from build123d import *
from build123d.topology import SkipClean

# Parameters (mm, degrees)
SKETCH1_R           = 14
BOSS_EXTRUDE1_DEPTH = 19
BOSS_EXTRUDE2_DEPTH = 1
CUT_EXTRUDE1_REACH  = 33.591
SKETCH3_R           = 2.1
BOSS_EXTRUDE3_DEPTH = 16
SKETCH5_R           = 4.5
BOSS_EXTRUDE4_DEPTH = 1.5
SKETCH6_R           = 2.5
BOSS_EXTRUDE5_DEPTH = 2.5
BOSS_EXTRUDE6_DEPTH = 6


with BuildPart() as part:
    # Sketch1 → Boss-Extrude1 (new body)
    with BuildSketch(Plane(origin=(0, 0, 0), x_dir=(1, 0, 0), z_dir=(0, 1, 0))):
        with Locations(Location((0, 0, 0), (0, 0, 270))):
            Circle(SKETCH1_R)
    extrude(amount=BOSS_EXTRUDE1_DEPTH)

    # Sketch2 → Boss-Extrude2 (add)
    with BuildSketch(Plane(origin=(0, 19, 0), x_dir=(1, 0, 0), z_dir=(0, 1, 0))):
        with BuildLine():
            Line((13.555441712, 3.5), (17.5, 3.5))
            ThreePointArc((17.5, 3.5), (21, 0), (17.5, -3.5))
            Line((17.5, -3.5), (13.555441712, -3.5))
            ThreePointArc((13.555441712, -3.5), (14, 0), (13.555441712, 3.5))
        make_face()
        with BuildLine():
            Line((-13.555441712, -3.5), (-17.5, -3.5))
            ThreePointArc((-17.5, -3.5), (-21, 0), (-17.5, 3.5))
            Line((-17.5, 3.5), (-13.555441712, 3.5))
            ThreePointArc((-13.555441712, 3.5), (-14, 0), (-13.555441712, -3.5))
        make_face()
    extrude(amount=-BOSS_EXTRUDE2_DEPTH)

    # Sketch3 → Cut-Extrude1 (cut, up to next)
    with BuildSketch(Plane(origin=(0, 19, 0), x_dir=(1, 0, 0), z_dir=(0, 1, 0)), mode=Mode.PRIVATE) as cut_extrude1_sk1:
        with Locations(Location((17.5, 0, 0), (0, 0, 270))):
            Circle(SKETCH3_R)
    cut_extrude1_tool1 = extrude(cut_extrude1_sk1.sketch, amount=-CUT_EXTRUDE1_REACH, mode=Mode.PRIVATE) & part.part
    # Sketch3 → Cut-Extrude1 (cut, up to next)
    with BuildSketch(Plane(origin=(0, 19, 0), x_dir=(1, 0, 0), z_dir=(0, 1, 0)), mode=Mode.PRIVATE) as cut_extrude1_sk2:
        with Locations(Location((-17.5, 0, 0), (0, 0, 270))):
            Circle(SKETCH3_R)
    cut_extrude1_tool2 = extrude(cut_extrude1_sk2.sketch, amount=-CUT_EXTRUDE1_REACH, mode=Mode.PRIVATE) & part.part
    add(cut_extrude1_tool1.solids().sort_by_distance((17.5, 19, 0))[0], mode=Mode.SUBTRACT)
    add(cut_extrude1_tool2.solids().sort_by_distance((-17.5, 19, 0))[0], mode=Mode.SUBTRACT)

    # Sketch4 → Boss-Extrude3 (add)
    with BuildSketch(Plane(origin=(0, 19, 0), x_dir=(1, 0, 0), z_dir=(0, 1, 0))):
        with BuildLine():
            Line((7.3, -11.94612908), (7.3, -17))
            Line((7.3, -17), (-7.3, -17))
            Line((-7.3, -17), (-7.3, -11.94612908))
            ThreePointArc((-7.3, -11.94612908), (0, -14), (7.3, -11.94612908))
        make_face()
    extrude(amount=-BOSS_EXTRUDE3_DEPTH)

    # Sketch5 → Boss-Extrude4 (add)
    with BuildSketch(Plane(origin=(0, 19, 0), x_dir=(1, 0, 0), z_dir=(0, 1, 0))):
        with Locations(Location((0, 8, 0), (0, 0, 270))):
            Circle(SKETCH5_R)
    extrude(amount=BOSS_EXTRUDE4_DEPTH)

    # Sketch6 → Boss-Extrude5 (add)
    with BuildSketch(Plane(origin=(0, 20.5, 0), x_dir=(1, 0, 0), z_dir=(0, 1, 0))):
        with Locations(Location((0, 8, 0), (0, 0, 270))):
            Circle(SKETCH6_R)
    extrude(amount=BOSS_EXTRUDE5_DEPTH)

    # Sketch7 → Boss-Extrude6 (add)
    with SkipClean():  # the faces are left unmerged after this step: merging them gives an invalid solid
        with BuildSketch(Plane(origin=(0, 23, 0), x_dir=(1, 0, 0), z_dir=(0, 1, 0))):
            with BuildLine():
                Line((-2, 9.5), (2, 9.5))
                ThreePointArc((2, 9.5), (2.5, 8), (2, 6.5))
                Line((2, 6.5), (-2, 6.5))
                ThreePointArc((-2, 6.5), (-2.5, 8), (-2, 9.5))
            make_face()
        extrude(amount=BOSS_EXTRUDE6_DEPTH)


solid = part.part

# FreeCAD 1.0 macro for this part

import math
import FreeCAD as App
import Part
import Sketcher
from FreeCAD import Vector

doc = App.newDocument("Part")
body = doc.addObject("PartDesign::Body", "Body")

sketch1 = doc.addObject("Sketcher::SketchObject", "Sketch")
body.addObject(sketch1)
sketch1.AttachmentSupport = (doc.XZ_Plane, [""])
sketch1.MapMode = "FlatFace"
sketch1.addGeometry(Part.Circle(Vector(0, 0, 0), Vector(0, 0, 1), 14), False)
sketch1.addConstraint([
    Sketcher.Constraint("Coincident", 0, 3, -1, 1),
    Sketcher.Constraint("Diameter", 0, 28.0),
])
pad1 = doc.addObject("PartDesign::Pad", "Pad")
body.addObject(pad1)
pad1.Profile = sketch1
pad1.Length = 19
pad1.Reversed = True

sketch2 = doc.addObject("Sketcher::SketchObject", "Sketch001")
body.addObject(sketch2)
sketch2.AttachmentSupport = (doc.XZ_Plane, [""])
sketch2.MapMode = "FlatFace"
sketch2.AttachmentOffset = App.Placement(Vector(0, 0, -19), App.Rotation())
sketch2.addGeometry([
    Part.LineSegment(Vector(17.5, -3.5, 0), Vector(13.555442, -3.5, 0)),
    Part.ArcOfCircle(Part.Circle(Vector(0, 0, 0), Vector(0, 0, 1), 14), math.radians(-14.477512), math.radians(14.477512)),
    Part.LineSegment(Vector(13.555442, 3.5, 0), Vector(17.5, 3.5, 0)),
    Part.ArcOfCircle(Part.Circle(Vector(17.5, 0, 0), Vector(0, 0, 1), 3.5), math.radians(-90), math.radians(90)),
    Part.LineSegment(Vector(-17.5, 3.5, 0), Vector(-13.555442, 3.5, 0)),
    Part.ArcOfCircle(Part.Circle(Vector(0, 0, 0), Vector(0, 0, 1), 14), math.radians(165.522488), math.radians(194.477512)),
    Part.LineSegment(Vector(-13.555442, -3.5, 0), Vector(-17.5, -3.5, 0)),
    Part.ArcOfCircle(Part.Circle(Vector(-17.5, 0, 0), Vector(0, 0, 1), 3.5), math.radians(90), math.radians(270)),
], False)
sketch2.addConstraint([
    Sketcher.Constraint("Coincident", 0, 2, 1, 1),
    Sketcher.Constraint("Coincident", 1, 2, 2, 1),
    Sketcher.Constraint("Tangent", 2, 2, 3, 2),
    Sketcher.Constraint("Tangent", 3, 1, 0, 1),
    Sketcher.Constraint("Coincident", 4, 2, 5, 1),
    Sketcher.Constraint("Coincident", 5, 2, 6, 1),
    Sketcher.Constraint("Tangent", 6, 2, 7, 2),
    Sketcher.Constraint("Tangent", 7, 1, 4, 1),
    Sketcher.Constraint("Horizontal", 0),
    Sketcher.Constraint("Horizontal", 2),
    Sketcher.Constraint("Horizontal", 4),
    Sketcher.Constraint("Horizontal", 6),
    Sketcher.Constraint("Coincident", 1, 3, -1, 1),
    Sketcher.Constraint("Coincident", 5, 3, -1, 1),
    Sketcher.Constraint("Equal", 1, 5),
    Sketcher.Constraint("Equal", 3, 7),
    Sketcher.Constraint("Symmetric", 3, 3, 7, 3, -1, 1),
    Sketcher.Constraint("PointOnObject", 3, 3, -1),
    Sketcher.Constraint("Radius", 1, 14.0),
    Sketcher.Constraint("Radius", 3, 3.5),
    Sketcher.Constraint("DistanceX", 7, 3, 3, 3, 35.0),
])
pad2 = doc.addObject("PartDesign::Pad", "Pad001")
body.addObject(pad2)
pad2.Profile = sketch2
pad2.Length = 1

sketch3 = doc.addObject("Sketcher::SketchObject", "Sketch002")
body.addObject(sketch3)
sketch3.AttachmentSupport = (doc.XZ_Plane, [""])
sketch3.MapMode = "FlatFace"
sketch3.AttachmentOffset = App.Placement(Vector(0, 0, -19), App.Rotation())
sketch3.addGeometry(Part.Circle(Vector(17.5, 0, 0), Vector(0, 0, 1), 2.1), False)
sketch3.addConstraint([
    Sketcher.Constraint("PointOnObject", 0, 3, -1),
    Sketcher.Constraint("Diameter", 0, 4.2),
    Sketcher.Constraint("DistanceX", -1, 1, 0, 3, 17.5),
])
pocket1 = doc.addObject("PartDesign::Pocket", "Pocket")
body.addObject(pocket1)
pocket1.Profile = sketch3
pocket1.Type = "UpToFirst"
pocket1.Reversed = True

sketch4 = doc.addObject("Sketcher::SketchObject", "Sketch003")
body.addObject(sketch4)
sketch4.AttachmentSupport = (doc.XZ_Plane, [""])
sketch4.MapMode = "FlatFace"
sketch4.AttachmentOffset = App.Placement(Vector(0, 0, -19), App.Rotation())
sketch4.addGeometry(Part.Circle(Vector(-17.5, 0, 0), Vector(0, 0, 1), 2.1), False)
sketch4.addConstraint([
    Sketcher.Constraint("PointOnObject", 0, 3, -1),
    Sketcher.Constraint("Diameter", 0, 4.2),
    Sketcher.Constraint("DistanceX", 0, 3, -1, 1, 17.5),
])
pocket2 = doc.addObject("PartDesign::Pocket", "Pocket001")
body.addObject(pocket2)
pocket2.Profile = sketch4
pocket2.Type = "UpToFirst"
pocket2.Reversed = True

sketch5 = doc.addObject("Sketcher::SketchObject", "Sketch004")
body.addObject(sketch5)
sketch5.AttachmentSupport = (doc.XZ_Plane, [""])
sketch5.MapMode = "FlatFace"
sketch5.AttachmentOffset = App.Placement(Vector(0, 0, -19), App.Rotation())
sketch5.addGeometry([
    Part.LineSegment(Vector(7.3, 17, 0), Vector(7.3, 11.946129, 0)),
    Part.ArcOfCircle(Part.Circle(Vector(0, 0, 0), Vector(0, 0, 1), 14), math.radians(58.571874), math.radians(121.428126)),
    Part.LineSegment(Vector(-7.3, 11.946129, 0), Vector(-7.3, 17, 0)),
    Part.LineSegment(Vector(-7.3, 17, 0), Vector(7.3, 17, 0)),
], False)
sketch5.addConstraint([
    Sketcher.Constraint("Coincident", 0, 2, 1, 1),
    Sketcher.Constraint("Coincident", 1, 2, 2, 1),
    Sketcher.Constraint("Coincident", 2, 2, 3, 1),
    Sketcher.Constraint("Coincident", 3, 2, 0, 1),
    Sketcher.Constraint("Vertical", 0),
    Sketcher.Constraint("Vertical", 2),
    Sketcher.Constraint("Horizontal", 3),
    Sketcher.Constraint("Coincident", 1, 3, -1, 1),
    Sketcher.Constraint("Horizontal", 0, 2, 1, 2),
    Sketcher.Constraint("Radius", 1, 14.0),
    Sketcher.Constraint("DistanceX", 3, 1, 3, 2, 14.6),
    Sketcher.Constraint("DistanceY", -1, 1, 2, 2, 17.0),
])
pad3 = doc.addObject("PartDesign::Pad", "Pad002")
body.addObject(pad3)
pad3.Profile = sketch5
pad3.Length = 16

sketch6 = doc.addObject("Sketcher::SketchObject", "Sketch005")
body.addObject(sketch6)
sketch6.AttachmentSupport = (doc.XZ_Plane, [""])
sketch6.MapMode = "FlatFace"
sketch6.AttachmentOffset = App.Placement(Vector(0, 0, -19), App.Rotation())
sketch6.addGeometry(Part.Circle(Vector(0, -8, 0), Vector(0, 0, 1), 4.5), False)
sketch6.addConstraint([
    Sketcher.Constraint("PointOnObject", 0, 3, -2),
    Sketcher.Constraint("Diameter", 0, 9.0),
    Sketcher.Constraint("DistanceY", 0, 3, -1, 1, 8.0),
])
pad4 = doc.addObject("PartDesign::Pad", "Pad003")
body.addObject(pad4)
pad4.Profile = sketch6
pad4.Length = 1.5
pad4.Reversed = True

sketch7 = doc.addObject("Sketcher::SketchObject", "Sketch006")
body.addObject(sketch7)
sketch7.AttachmentSupport = (doc.XZ_Plane, [""])
sketch7.MapMode = "FlatFace"
sketch7.AttachmentOffset = App.Placement(Vector(0, 0, -20.5), App.Rotation())
sketch7.addGeometry(Part.Circle(Vector(0, -8, 0), Vector(0, 0, 1), 2.5), False)
sketch7.addConstraint([
    Sketcher.Constraint("PointOnObject", 0, 3, -2),
    Sketcher.Constraint("Diameter", 0, 5.0),
    Sketcher.Constraint("DistanceY", 0, 3, -1, 1, 8.0),
])
pad5 = doc.addObject("PartDesign::Pad", "Pad004")
body.addObject(pad5)
pad5.Profile = sketch7
pad5.Length = 2.5
pad5.Reversed = True

sketch8 = doc.addObject("Sketcher::SketchObject", "Sketch007")
body.addObject(sketch8)
sketch8.AttachmentSupport = (doc.XZ_Plane, [""])
sketch8.MapMode = "FlatFace"
sketch8.AttachmentOffset = App.Placement(Vector(0, 0, -23), App.Rotation())
sketch8.addGeometry([
    Part.LineSegment(Vector(2, -9.5, 0), Vector(-2, -9.5, 0)),
    Part.ArcOfCircle(Part.Circle(Vector(0, -8, 0), Vector(0, 0, 1), 2.5), math.radians(143.130102), math.radians(216.869898)),
    Part.LineSegment(Vector(-2, -6.5, 0), Vector(2, -6.5, 0)),
    Part.ArcOfCircle(Part.Circle(Vector(0, -8, 0), Vector(0, 0, 1), 2.5), math.radians(-36.869898), math.radians(36.869898)),
], False)
sketch8.addConstraint([
    Sketcher.Constraint("Coincident", 0, 2, 1, 2),
    Sketcher.Constraint("Coincident", 1, 1, 2, 1),
    Sketcher.Constraint("Coincident", 2, 2, 3, 2),
    Sketcher.Constraint("Coincident", 3, 1, 0, 1),
    Sketcher.Constraint("Horizontal", 0),
    Sketcher.Constraint("Horizontal", 2),
    Sketcher.Constraint("Coincident", 3, 3, 1, 3),
    Sketcher.Constraint("Equal", 1, 3),
    Sketcher.Constraint("PointOnObject", 1, 3, -2),
    Sketcher.Constraint("Vertical", 0, 2, 1, 1),
    Sketcher.Constraint("Radius", 1, 2.5),
    Sketcher.Constraint("DistanceX", 0, 2, 0, 1, 4.0),
    Sketcher.Constraint("DistanceY", 1, 3, -1, 1, 8.0),
])
pad6 = doc.addObject("PartDesign::Pad", "Pad005")
body.addObject(pad6)
pad6.Profile = sketch8
pad6.Length = 6
pad6.Reversed = True

doc.recompute()
